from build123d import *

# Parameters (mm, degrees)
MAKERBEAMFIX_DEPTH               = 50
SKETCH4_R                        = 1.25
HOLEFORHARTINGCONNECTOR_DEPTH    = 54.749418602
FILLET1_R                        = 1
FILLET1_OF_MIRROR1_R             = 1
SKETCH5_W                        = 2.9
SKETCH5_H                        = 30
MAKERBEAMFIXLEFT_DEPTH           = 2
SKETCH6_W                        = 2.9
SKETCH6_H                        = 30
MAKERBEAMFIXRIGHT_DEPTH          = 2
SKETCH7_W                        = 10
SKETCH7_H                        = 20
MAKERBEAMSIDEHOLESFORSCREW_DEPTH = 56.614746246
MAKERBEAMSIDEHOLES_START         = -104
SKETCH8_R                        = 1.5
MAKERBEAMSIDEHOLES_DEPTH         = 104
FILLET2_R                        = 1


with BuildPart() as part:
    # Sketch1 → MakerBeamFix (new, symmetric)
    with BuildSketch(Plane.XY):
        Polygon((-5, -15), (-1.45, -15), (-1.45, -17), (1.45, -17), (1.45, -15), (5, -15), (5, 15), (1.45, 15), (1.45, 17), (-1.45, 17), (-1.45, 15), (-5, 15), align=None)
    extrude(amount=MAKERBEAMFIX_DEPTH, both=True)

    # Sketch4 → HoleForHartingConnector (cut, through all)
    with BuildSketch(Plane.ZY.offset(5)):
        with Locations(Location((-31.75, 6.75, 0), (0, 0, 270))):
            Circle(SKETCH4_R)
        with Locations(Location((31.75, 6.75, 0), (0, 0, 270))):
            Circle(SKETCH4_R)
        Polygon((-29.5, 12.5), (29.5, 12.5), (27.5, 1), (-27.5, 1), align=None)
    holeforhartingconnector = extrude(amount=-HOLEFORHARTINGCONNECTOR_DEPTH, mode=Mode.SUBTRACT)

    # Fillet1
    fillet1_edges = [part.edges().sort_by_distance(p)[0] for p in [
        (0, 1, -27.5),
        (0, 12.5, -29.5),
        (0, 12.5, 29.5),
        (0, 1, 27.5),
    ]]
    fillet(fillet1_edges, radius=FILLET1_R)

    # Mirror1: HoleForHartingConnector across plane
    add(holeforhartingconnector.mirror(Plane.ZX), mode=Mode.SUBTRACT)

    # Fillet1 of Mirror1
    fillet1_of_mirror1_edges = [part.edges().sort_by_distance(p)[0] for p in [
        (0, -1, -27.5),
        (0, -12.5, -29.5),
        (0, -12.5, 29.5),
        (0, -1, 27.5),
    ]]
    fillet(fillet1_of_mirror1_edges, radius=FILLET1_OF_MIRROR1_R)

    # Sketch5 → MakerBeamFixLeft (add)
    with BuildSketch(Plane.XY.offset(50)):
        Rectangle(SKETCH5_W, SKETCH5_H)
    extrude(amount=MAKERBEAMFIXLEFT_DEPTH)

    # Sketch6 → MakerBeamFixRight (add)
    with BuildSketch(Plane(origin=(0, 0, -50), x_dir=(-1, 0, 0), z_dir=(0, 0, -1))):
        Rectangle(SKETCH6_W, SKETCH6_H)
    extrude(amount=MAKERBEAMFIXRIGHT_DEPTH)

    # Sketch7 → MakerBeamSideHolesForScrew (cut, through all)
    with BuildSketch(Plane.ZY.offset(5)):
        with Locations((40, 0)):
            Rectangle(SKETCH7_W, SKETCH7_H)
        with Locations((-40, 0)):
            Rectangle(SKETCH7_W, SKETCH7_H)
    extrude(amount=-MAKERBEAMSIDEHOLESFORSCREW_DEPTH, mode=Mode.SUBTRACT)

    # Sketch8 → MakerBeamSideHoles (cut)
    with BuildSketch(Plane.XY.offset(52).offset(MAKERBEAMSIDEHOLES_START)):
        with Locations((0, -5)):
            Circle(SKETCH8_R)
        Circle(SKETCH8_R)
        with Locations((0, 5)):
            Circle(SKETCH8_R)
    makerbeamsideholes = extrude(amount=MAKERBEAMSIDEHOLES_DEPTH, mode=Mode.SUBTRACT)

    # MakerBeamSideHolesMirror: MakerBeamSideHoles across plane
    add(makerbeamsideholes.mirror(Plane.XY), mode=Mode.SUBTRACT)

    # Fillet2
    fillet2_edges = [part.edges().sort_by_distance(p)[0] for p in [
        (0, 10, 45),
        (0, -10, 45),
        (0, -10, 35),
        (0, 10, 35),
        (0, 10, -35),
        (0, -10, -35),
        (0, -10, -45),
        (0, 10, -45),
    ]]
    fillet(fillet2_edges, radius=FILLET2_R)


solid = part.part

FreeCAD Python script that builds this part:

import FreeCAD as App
import Part
import Sketcher
from FreeCAD import Vector


def edges_at(feature, points):
    """Names of the edges that pass closest to the given points."""
    edges = feature.Shape.Edges
    near = lambda p: min(range(len(edges)), key=lambda i: edges[i].distToShape(Part.Vertex(*p))[0])
    return sorted({f"Edge{near(p) + 1}" for p in points})

doc = App.newDocument("Part")
body = doc.addObject("PartDesign::Body", "Body")

# Sketch on XY plane
sketch1 = body.newObject("Sketcher::SketchObject", "Sketch")
sketch1.AttachmentSupport = (doc.getObject("XY_Plane"), [""])
sketch1.MapMode = "FlatFace"
sketch1.addGeometry(Part.LineSegment(Vector(-5, -15, 0), Vector(-1.4, -15, 0)), False)
sketch1.addGeometry(Part.LineSegment(Vector(-1.4, -15, 0), Vector(-1.4, -17, 0)), False)
sketch1.addGeometry(Part.LineSegment(Vector(-1.4, -17, 0), Vector(1.4, -17, 0)), False)
sketch1.addGeometry(Part.LineSegment(Vector(1.4, -17, 0), Vector(1.4, -15, 0)), False)
sketch1.addGeometry(Part.LineSegment(Vector(1.4, -15, 0), Vector(5, -15, 0)), False)
sketch1.addGeometry(Part.LineSegment(Vector(5, -15, 0), Vector(5, 15, 0)), False)
sketch1.addGeometry(Part.LineSegment(Vector(5, 15, 0), Vector(1.4, 15, 0)), False)
sketch1.addGeometry(Part.LineSegment(Vector(1.4, 15, 0), Vector(1.4, 17, 0)), False)
sketch1.addGeometry(Part.LineSegment(Vector(1.4, 17, 0), Vector(-1.4, 17, 0)), False)
sketch1.addGeometry(Part.LineSegment(Vector(-1.4, 17, 0), Vector(-1.4, 15, 0)), False)
sketch1.addGeometry(Part.LineSegment(Vector(-1.4, 15, 0), Vector(-5, 15, 0)), False)
sketch1.addGeometry(Part.LineSegment(Vector(-5, 15, 0), Vector(-5, -15, 0)), False)
sketch1.addConstraint(Sketcher.Constraint("Coincident", 0, 2, 1, 1))
sketch1.addConstraint(Sketcher.Constraint("Coincident", 1, 2, 2, 1))
sketch1.addConstraint(Sketcher.Constraint("Coincident", 2, 2, 3, 1))
sketch1.addConstraint(Sketcher.Constraint("Coincident", 3, 2, 4, 1))
sketch1.addConstraint(Sketcher.Constraint("Coincident", 4, 2, 5, 1))
sketch1.addConstraint(Sketcher.Constraint("Coincident", 5, 2, 6, 1))
sketch1.addConstraint(Sketcher.Constraint("Coincident", 6, 2, 7, 1))
sketch1.addConstraint(Sketcher.Constraint("Coincident", 7, 2, 8, 1))
sketch1.addConstraint(Sketcher.Constraint("Coincident", 8, 2, 9, 1))
sketch1.addConstraint(Sketcher.Constraint("Coincident", 9, 2, 10, 1))
sketch1.addConstraint(Sketcher.Constraint("Coincident", 10, 2, 11, 1))
sketch1.addConstraint(Sketcher.Constraint("Coincident", 11, 2, 0, 1))
sketch1.addConstraint(Sketcher.Constraint("Horizontal", 0))
sketch1.addConstraint(Sketcher.Constraint("Vertical", 1))
sketch1.addConstraint(Sketcher.Constraint("Horizontal", 2))
sketch1.addConstraint(Sketcher.Constraint("Vertical", 3))
sketch1.addConstraint(Sketcher.Constraint("Horizontal", 4))
sketch1.addConstraint(Sketcher.Constraint("Vertical", 5))
sketch1.addConstraint(Sketcher.Constraint("Horizontal", 6))
sketch1.addConstraint(Sketcher.Constraint("Vertical", 7))
sketch1.addConstraint(Sketcher.Constraint("Horizontal", 8))
sketch1.addConstraint(Sketcher.Constraint("Vertical", 9))
sketch1.addConstraint(Sketcher.Constraint("Horizontal", 10))
sketch1.addConstraint(Sketcher.Constraint("Vertical", 11))
sketch1.addConstraint(Sketcher.Constraint("Symmetric", 0, 2, 6, 2, -1, 1))
sketch1.addConstraint(Sketcher.Constraint("Symmetric", 2, 2, 8, 2, -1, 1))
sketch1.addConstraint(Sketcher.Constraint("Symmetric", 4, 2, 10, 2, -1, 1))
sketch1.addConstraint(Sketcher.Constraint("Symmetric", 0, 2, 3, 2, -2))
sketch1.addConstraint(Sketcher.Constraint("DistanceY", 1, 2, 1, 1, 2.0))
sketch1.addConstraint(Sketcher.Constraint("DistanceY", 5, 1, 5, 2, 30.0))
sketch1.addConstraint(Sketcher.Constraint("DistanceX", 2, 1, 2, 2, 2.9))
sketch1.addConstraint(Sketcher.Constraint("DistanceX", -1, 1, 4, 2, 5.0))
pad1 = body.newObject("PartDesign::Pad", "Pad")
pad1.Profile = sketch1
pad1.Length = 100
pad1.Midplane = True

# Sketch on YZ plane
sketch2 = body.newObject("Sketcher::SketchObject", "Sketch001")
sketch2.AttachmentSupport = (doc.getObject("YZ_Plane"), [""])
sketch2.MapMode = "FlatFace"
sketch2.AttachmentOffset = App.Placement(Vector(0, 0, -5), App.Rotation())
sketch2.addGeometry(Part.Circle(Vector(6.8, -31.8, 0), Vector(0, 0, 1), 1.2), False)
sketch2.addGeometry(Part.Circle(Vector(6.8, 31.8, 0), Vector(0, 0, 1), 1.2), False)
sketch2.addGeometry(Part.LineSegment(Vector(12.5, 29.5, 0), Vector(12.5, -29.5, 0)), False)
sketch2.addGeometry(Part.LineSegment(Vector(12.5, -29.5, 0), Vector(1, -27.5, 0)), False)
sketch2.addGeometry(Part.LineSegment(Vector(1, -27.5, 0), Vector(1, 27.5, 0)), False)
sketch2.addGeometry(Part.LineSegment(Vector(1, 27.5, 0), Vector(12.5, 29.5, 0)), False)
sketch2.addConstraint(Sketcher.Constraint("Coincident", 2, 2, 3, 1))
sketch2.addConstraint(Sketcher.Constraint("Coincident", 3, 2, 4, 1))
sketch2.addConstraint(Sketcher.Constraint("Coincident", 4, 2, 5, 1))
sketch2.addConstraint(Sketcher.Constraint("Coincident", 5, 2, 2, 1))
sketch2.addConstraint(Sketcher.Constraint("Vertical", 2))
sketch2.addConstraint(Sketcher.Constraint("Vertical", 4))
sketch2.addConstraint(Sketcher.Constraint("Equal", 0, 1))
sketch2.addConstraint(Sketcher.Constraint("Symmetric", 0, 3, 1, 3, -1))
sketch2.addConstraint(Sketcher.Constraint("Equal", 3, 5))
sketch2.addConstraint(Sketcher.Constraint("Diameter", 0, 2.5))
sketch2.addConstraint(Sketcher.Constraint("DistanceY", 2, 2, 2, 1, 59.0))
sketch2.addConstraint(Sketcher.Constraint("DistanceY", 4, 1, 4, 2, 55.0))
sketch2.addConstraint(Sketcher.Constraint("DistanceX", -1, 1, 3, 2, 1.0))
sketch2.addConstraint(Sketcher.Constraint("DistanceX", -1, 1, 2, 2, 12.5))
sketch2.addConstraint(Sketcher.Constraint("DistanceY", 2, 2, -1, 1, 29.5))
sketch2.addConstraint(Sketcher.Constraint("DistanceY", 0, 3, 1, 3, 63.5))
sketch2.addConstraint(Sketcher.Constraint("DistanceX", -1, 1, 0, 3, 6.75))
pocket1 = body.newObject("PartDesign::Pocket", "Pocket")
pocket1.Profile = sketch2
pocket1.Type = "ThroughAll"
pocket1.Reversed = True
doc.recompute()

fillet = body.newObject("PartDesign::Fillet", "Fillet")
fillet.Base = (pocket1, edges_at(pocket1, [
    (0, 1, -27.5),
    (0, 12.5, -29.5),
    (0, 12.5, 29.5),
    (0, 1, 27.5),
]))
fillet.Radius = 1
doc.recompute()

mirrored = body.newObject("PartDesign::Mirrored", "Mirrored")
mirrored.Originals = [pocket1]
mirrored.MirrorPlane = (doc.getObject("XZ_Plane"), [""])
body.Tip = mirrored
doc.recompute()

fillet2 = body.newObject("PartDesign::Fillet", "Fillet001")
fillet2.Base = (mirrored, edges_at(mirrored, [
    (0, -1, -27.5),
    (0, -12.5, -29.5),
    (0, -12.5, 29.5),
    (0, -1, 27.5),
]))
fillet2.Radius = 1

# Sketch on XY plane
sketch3 = body.newObject("Sketcher::SketchObject", "Sketch002")
sketch3.AttachmentSupport = (doc.getObject("XY_Plane"), [""])
sketch3.MapMode = "FlatFace"
sketch3.AttachmentOffset = App.Placement(Vector(0, 0, 50), App.Rotation())
sketch3.addGeometry(Part.LineSegment(Vector(-1.4, 15, 0), Vector(-1.4, -15, 0)), False)
sketch3.addGeometry(Part.LineSegment(Vector(-1.4, -15, 0), Vector(1.4, -15, 0)), False)
sketch3.addGeometry(Part.LineSegment(Vector(1.4, -15, 0), Vector(1.4, 15, 0)), False)
sketch3.addGeometry(Part.LineSegment(Vector(1.4, 15, 0), Vector(-1.4, 15, 0)), False)
sketch3.addConstraint(Sketcher.Constraint("Coincident", 0, 2, 1, 1))
sketch3.addConstraint(Sketcher.Constraint("Coincident", 1, 2, 2, 1))
sketch3.addConstraint(Sketcher.Constraint("Coincident", 2, 2, 3, 1))
sketch3.addConstraint(Sketcher.Constraint("Coincident", 3, 2, 0, 1))
sketch3.addConstraint(Sketcher.Constraint("Vertical", 0))
sketch3.addConstraint(Sketcher.Constraint("Horizontal", 1))
sketch3.addConstraint(Sketcher.Constraint("Vertical", 2))
sketch3.addConstraint(Sketcher.Constraint("Horizontal", 3))
sketch3.addConstraint(Sketcher.Constraint("Symmetric", 0, 2, 2, 2, -1, 1))
sketch3.addConstraint(Sketcher.Constraint("DistanceY", 0, 2, 0, 1, 30.0))
sketch3.addConstraint(Sketcher.Constraint("DistanceX", 1, 1, 1, 2, 2.9))
pad2 = body.newObject("PartDesign::Pad", "Pad001")
pad2.Profile = sketch3
pad2.Length = 2

# Sketch on XY plane
sketch4 = body.newObject("Sketcher::SketchObject", "Sketch003")
sketch4.AttachmentSupport = (doc.getObject("XY_Plane"), [""])
sketch4.MapMode = "FlatFace"
sketch4.AttachmentOffset = App.Placement(Vector(0, 0, -50), App.Rotation())
sketch4.addGeometry(Part.LineSegment(Vector(1.4, 15, 0), Vector(1.4, -15, 0)), False)
sketch4.addGeometry(Part.LineSegment(Vector(1.4, -15, 0), Vector(-1.4, -15, 0)), False)
sketch4.addGeometry(Part.LineSegment(Vector(-1.4, -15, 0), Vector(-1.4, 15, 0)), False)
sketch4.addGeometry(Part.LineSegment(Vector(-1.4, 15, 0), Vector(1.4, 15, 0)), False)
sketch4.addConstraint(Sketcher.Constraint("Coincident", 0, 2, 1, 1))
sketch4.addConstraint(Sketcher.Constraint("Coincident", 1, 2, 2, 1))
sketch4.addConstraint(Sketcher.Constraint("Coincident", 2, 2, 3, 1))
sketch4.addConstraint(Sketcher.Constraint("Coincident", 3, 2, 0, 1))
sketch4.addConstraint(Sketcher.Constraint("Vertical", 0))
sketch4.addConstraint(Sketcher.Constraint("Horizontal", 1))
sketch4.addConstraint(Sketcher.Constraint("Vertical", 2))
sketch4.addConstraint(Sketcher.Constraint("Horizontal", 3))
sketch4.addConstraint(Sketcher.Constraint("Symmetric", 0, 2, 2, 2, -1, 1))
sketch4.addConstraint(Sketcher.Constraint("DistanceY", 0, 2, 0, 1, 30.0))
sketch4.addConstraint(Sketcher.Constraint("DistanceX", 1, 2, 1, 1, 2.9))
pad3 = body.newObject("PartDesign::Pad", "Pad002")
pad3.Profile = sketch4
pad3.Length = 2
pad3.Reversed = True

# Sketch on YZ plane
sketch5 = body.newObject("Sketcher::SketchObject", "Sketch004")
sketch5.AttachmentSupport = (doc.getObject("YZ_Plane"), [""])
sketch5.MapMode = "FlatFace"
sketch5.AttachmentOffset = App.Placement(Vector(0, 0, -5), App.Rotation())
sketch5.addGeometry(Part.LineSegment(Vector(10, 35, 0), Vector(-10, 35, 0)), False)
sketch5.addGeometry(Part.LineSegment(Vector(-10, 35, 0), Vector(-10, 45, 0)), False)
sketch5.addGeometry(Part.LineSegment(Vector(-10, 45, 0), Vector(10, 45, 0)), False)
sketch5.addGeometry(Part.LineSegment(Vector(10, 45, 0), Vector(10, 35, 0)), False)
sketch5.addGeometry(Part.LineSegment(Vector(10, -45, 0), Vector(-10, -45, 0)), False)
sketch5.addGeometry(Part.LineSegment(Vector(-10, -45, 0), Vector(-10, -35, 0)), False)
sketch5.addGeometry(Part.LineSegment(Vector(-10, -35, 0), Vector(10, -35, 0)), False)
sketch5.addGeometry(Part.LineSegment(Vector(10, -35, 0), Vector(10, -45, 0)), False)
sketch5.addConstraint(Sketcher.Constraint("Coincident", 0, 2, 1, 1))
sketch5.addConstraint(Sketcher.Constraint("Coincident", 1, 2, 2, 1))
sketch5.addConstraint(Sketcher.Constraint("Coincident", 2, 2, 3, 1))
sketch5.addConstraint(Sketcher.Constraint("Coincident", 3, 2, 0, 1))
sketch5.addConstraint(Sketcher.Constraint("Coincident", 4, 2, 5, 1))
sketch5.addConstraint(Sketcher.Constraint("Coincident", 5, 2, 6, 1))
sketch5.addConstraint(Sketcher.Constraint("Coincident", 6, 2, 7, 1))
sketch5.addConstraint(Sketcher.Constraint("Coincident", 7, 2, 4, 1))
sketch5.addConstraint(Sketcher.Constraint("Horizontal", 0))
sketch5.addConstraint(Sketcher.Constraint("Vertical", 1))
sketch5.addConstraint(Sketcher.Constraint("Horizontal", 2))
sketch5.addConstraint(Sketcher.Constraint("Vertical", 3))
sketch5.addConstraint(Sketcher.Constraint("Horizontal", 4))
sketch5.addConstraint(Sketcher.Constraint("Vertical", 5))
sketch5.addConstraint(Sketcher.Constraint("Horizontal", 6))
sketch5.addConstraint(Sketcher.Constraint("Vertical", 7))
sketch5.addConstraint(Sketcher.Constraint("Symmetric", 2, 2, 4, 2, -1, 1))
sketch5.addConstraint(Sketcher.Constraint("Symmetric", 0, 2, 6, 2, -1, 1))
sketch5.addConstraint(Sketcher.Constraint("Vertical", 1, 2, 4, 2))
sketch5.addConstraint(Sketcher.Constraint("DistanceX", 0, 2, 0, 1, 20.0))
sketch5.addConstraint(Sketcher.Constraint("DistanceY", 1, 1, 1, 2, 10.0))
sketch5.addConstraint(Sketcher.Constraint("DistanceY", -1, 1, 0, 2, 35.0))
pocket2 = body.newObject("PartDesign::Pocket", "Pocket001")
pocket2.Profile = sketch5
pocket2.Type = "ThroughAll"
pocket2.Reversed = True

# Sketch on XY plane
sketch6 = body.newObject("Sketcher::SketchObject", "Sketch005")
sketch6.AttachmentSupport = (doc.getObject("XY_Plane"), [""])
sketch6.MapMode = "FlatFace"
sketch6.AttachmentOffset = App.Placement(Vector(0, 0, -52), App.Rotation())
sketch6.addGeometry(Part.Circle(Vector(0, -5, 0), Vector(0, 0, 1), 1.5), False)
sketch6.addGeometry(Part.Circle(Vector(0, 0, 0), Vector(0, 0, 1), 1.5), False)
sketch6.addGeometry(Part.Circle(Vector(0, 5, 0), Vector(0, 0, 1), 1.5), False)
sketch6.addConstraint(Sketcher.Constraint("Coincident", 1, 3, -1, 1))
sketch6.addConstraint(Sketcher.Constraint("Equal", 0, 1))
sketch6.addConstraint(Sketcher.Constraint("Equal", 1, 2))
sketch6.addConstraint(Sketcher.Constraint("Symmetric", 0, 3, 2, 3, -1, 1))
sketch6.addConstraint(Sketcher.Constraint("PointOnObject", 0, 3, -2))
sketch6.addConstraint(Sketcher.Constraint("Diameter", 0, 3.0))
sketch6.addConstraint(Sketcher.Constraint("DistanceY", 0, 3, -1, 1, 5.0))
pocket3 = body.newObject("PartDesign::Pocket", "Pocket002")
pocket3.Profile = sketch6
pocket3.Length = 104
pocket3.Reversed = True
doc.recompute()

mirrored2 = body.newObject("PartDesign::Mirrored", "Mirrored001")
mirrored2.Originals = [pocket3]
mirrored2.MirrorPlane = (doc.getObject("XY_Plane"), [""])
body.Tip = mirrored2
doc.recompute()

fillet3 = body.newObject("PartDesign::Fillet", "Fillet002")
fillet3.Base = (mirrored2, edges_at(mirrored2, [
    (0, 10, 45),
    (0, -10, 45),
    (0, -10, 35),
    (0, 10, 35),
    (0, 10, -35),
    (0, -10, -35),
    (0, -10, -45),
    (0, 10, -45),
]))
fillet3.Radius = 1

doc.recompute()
